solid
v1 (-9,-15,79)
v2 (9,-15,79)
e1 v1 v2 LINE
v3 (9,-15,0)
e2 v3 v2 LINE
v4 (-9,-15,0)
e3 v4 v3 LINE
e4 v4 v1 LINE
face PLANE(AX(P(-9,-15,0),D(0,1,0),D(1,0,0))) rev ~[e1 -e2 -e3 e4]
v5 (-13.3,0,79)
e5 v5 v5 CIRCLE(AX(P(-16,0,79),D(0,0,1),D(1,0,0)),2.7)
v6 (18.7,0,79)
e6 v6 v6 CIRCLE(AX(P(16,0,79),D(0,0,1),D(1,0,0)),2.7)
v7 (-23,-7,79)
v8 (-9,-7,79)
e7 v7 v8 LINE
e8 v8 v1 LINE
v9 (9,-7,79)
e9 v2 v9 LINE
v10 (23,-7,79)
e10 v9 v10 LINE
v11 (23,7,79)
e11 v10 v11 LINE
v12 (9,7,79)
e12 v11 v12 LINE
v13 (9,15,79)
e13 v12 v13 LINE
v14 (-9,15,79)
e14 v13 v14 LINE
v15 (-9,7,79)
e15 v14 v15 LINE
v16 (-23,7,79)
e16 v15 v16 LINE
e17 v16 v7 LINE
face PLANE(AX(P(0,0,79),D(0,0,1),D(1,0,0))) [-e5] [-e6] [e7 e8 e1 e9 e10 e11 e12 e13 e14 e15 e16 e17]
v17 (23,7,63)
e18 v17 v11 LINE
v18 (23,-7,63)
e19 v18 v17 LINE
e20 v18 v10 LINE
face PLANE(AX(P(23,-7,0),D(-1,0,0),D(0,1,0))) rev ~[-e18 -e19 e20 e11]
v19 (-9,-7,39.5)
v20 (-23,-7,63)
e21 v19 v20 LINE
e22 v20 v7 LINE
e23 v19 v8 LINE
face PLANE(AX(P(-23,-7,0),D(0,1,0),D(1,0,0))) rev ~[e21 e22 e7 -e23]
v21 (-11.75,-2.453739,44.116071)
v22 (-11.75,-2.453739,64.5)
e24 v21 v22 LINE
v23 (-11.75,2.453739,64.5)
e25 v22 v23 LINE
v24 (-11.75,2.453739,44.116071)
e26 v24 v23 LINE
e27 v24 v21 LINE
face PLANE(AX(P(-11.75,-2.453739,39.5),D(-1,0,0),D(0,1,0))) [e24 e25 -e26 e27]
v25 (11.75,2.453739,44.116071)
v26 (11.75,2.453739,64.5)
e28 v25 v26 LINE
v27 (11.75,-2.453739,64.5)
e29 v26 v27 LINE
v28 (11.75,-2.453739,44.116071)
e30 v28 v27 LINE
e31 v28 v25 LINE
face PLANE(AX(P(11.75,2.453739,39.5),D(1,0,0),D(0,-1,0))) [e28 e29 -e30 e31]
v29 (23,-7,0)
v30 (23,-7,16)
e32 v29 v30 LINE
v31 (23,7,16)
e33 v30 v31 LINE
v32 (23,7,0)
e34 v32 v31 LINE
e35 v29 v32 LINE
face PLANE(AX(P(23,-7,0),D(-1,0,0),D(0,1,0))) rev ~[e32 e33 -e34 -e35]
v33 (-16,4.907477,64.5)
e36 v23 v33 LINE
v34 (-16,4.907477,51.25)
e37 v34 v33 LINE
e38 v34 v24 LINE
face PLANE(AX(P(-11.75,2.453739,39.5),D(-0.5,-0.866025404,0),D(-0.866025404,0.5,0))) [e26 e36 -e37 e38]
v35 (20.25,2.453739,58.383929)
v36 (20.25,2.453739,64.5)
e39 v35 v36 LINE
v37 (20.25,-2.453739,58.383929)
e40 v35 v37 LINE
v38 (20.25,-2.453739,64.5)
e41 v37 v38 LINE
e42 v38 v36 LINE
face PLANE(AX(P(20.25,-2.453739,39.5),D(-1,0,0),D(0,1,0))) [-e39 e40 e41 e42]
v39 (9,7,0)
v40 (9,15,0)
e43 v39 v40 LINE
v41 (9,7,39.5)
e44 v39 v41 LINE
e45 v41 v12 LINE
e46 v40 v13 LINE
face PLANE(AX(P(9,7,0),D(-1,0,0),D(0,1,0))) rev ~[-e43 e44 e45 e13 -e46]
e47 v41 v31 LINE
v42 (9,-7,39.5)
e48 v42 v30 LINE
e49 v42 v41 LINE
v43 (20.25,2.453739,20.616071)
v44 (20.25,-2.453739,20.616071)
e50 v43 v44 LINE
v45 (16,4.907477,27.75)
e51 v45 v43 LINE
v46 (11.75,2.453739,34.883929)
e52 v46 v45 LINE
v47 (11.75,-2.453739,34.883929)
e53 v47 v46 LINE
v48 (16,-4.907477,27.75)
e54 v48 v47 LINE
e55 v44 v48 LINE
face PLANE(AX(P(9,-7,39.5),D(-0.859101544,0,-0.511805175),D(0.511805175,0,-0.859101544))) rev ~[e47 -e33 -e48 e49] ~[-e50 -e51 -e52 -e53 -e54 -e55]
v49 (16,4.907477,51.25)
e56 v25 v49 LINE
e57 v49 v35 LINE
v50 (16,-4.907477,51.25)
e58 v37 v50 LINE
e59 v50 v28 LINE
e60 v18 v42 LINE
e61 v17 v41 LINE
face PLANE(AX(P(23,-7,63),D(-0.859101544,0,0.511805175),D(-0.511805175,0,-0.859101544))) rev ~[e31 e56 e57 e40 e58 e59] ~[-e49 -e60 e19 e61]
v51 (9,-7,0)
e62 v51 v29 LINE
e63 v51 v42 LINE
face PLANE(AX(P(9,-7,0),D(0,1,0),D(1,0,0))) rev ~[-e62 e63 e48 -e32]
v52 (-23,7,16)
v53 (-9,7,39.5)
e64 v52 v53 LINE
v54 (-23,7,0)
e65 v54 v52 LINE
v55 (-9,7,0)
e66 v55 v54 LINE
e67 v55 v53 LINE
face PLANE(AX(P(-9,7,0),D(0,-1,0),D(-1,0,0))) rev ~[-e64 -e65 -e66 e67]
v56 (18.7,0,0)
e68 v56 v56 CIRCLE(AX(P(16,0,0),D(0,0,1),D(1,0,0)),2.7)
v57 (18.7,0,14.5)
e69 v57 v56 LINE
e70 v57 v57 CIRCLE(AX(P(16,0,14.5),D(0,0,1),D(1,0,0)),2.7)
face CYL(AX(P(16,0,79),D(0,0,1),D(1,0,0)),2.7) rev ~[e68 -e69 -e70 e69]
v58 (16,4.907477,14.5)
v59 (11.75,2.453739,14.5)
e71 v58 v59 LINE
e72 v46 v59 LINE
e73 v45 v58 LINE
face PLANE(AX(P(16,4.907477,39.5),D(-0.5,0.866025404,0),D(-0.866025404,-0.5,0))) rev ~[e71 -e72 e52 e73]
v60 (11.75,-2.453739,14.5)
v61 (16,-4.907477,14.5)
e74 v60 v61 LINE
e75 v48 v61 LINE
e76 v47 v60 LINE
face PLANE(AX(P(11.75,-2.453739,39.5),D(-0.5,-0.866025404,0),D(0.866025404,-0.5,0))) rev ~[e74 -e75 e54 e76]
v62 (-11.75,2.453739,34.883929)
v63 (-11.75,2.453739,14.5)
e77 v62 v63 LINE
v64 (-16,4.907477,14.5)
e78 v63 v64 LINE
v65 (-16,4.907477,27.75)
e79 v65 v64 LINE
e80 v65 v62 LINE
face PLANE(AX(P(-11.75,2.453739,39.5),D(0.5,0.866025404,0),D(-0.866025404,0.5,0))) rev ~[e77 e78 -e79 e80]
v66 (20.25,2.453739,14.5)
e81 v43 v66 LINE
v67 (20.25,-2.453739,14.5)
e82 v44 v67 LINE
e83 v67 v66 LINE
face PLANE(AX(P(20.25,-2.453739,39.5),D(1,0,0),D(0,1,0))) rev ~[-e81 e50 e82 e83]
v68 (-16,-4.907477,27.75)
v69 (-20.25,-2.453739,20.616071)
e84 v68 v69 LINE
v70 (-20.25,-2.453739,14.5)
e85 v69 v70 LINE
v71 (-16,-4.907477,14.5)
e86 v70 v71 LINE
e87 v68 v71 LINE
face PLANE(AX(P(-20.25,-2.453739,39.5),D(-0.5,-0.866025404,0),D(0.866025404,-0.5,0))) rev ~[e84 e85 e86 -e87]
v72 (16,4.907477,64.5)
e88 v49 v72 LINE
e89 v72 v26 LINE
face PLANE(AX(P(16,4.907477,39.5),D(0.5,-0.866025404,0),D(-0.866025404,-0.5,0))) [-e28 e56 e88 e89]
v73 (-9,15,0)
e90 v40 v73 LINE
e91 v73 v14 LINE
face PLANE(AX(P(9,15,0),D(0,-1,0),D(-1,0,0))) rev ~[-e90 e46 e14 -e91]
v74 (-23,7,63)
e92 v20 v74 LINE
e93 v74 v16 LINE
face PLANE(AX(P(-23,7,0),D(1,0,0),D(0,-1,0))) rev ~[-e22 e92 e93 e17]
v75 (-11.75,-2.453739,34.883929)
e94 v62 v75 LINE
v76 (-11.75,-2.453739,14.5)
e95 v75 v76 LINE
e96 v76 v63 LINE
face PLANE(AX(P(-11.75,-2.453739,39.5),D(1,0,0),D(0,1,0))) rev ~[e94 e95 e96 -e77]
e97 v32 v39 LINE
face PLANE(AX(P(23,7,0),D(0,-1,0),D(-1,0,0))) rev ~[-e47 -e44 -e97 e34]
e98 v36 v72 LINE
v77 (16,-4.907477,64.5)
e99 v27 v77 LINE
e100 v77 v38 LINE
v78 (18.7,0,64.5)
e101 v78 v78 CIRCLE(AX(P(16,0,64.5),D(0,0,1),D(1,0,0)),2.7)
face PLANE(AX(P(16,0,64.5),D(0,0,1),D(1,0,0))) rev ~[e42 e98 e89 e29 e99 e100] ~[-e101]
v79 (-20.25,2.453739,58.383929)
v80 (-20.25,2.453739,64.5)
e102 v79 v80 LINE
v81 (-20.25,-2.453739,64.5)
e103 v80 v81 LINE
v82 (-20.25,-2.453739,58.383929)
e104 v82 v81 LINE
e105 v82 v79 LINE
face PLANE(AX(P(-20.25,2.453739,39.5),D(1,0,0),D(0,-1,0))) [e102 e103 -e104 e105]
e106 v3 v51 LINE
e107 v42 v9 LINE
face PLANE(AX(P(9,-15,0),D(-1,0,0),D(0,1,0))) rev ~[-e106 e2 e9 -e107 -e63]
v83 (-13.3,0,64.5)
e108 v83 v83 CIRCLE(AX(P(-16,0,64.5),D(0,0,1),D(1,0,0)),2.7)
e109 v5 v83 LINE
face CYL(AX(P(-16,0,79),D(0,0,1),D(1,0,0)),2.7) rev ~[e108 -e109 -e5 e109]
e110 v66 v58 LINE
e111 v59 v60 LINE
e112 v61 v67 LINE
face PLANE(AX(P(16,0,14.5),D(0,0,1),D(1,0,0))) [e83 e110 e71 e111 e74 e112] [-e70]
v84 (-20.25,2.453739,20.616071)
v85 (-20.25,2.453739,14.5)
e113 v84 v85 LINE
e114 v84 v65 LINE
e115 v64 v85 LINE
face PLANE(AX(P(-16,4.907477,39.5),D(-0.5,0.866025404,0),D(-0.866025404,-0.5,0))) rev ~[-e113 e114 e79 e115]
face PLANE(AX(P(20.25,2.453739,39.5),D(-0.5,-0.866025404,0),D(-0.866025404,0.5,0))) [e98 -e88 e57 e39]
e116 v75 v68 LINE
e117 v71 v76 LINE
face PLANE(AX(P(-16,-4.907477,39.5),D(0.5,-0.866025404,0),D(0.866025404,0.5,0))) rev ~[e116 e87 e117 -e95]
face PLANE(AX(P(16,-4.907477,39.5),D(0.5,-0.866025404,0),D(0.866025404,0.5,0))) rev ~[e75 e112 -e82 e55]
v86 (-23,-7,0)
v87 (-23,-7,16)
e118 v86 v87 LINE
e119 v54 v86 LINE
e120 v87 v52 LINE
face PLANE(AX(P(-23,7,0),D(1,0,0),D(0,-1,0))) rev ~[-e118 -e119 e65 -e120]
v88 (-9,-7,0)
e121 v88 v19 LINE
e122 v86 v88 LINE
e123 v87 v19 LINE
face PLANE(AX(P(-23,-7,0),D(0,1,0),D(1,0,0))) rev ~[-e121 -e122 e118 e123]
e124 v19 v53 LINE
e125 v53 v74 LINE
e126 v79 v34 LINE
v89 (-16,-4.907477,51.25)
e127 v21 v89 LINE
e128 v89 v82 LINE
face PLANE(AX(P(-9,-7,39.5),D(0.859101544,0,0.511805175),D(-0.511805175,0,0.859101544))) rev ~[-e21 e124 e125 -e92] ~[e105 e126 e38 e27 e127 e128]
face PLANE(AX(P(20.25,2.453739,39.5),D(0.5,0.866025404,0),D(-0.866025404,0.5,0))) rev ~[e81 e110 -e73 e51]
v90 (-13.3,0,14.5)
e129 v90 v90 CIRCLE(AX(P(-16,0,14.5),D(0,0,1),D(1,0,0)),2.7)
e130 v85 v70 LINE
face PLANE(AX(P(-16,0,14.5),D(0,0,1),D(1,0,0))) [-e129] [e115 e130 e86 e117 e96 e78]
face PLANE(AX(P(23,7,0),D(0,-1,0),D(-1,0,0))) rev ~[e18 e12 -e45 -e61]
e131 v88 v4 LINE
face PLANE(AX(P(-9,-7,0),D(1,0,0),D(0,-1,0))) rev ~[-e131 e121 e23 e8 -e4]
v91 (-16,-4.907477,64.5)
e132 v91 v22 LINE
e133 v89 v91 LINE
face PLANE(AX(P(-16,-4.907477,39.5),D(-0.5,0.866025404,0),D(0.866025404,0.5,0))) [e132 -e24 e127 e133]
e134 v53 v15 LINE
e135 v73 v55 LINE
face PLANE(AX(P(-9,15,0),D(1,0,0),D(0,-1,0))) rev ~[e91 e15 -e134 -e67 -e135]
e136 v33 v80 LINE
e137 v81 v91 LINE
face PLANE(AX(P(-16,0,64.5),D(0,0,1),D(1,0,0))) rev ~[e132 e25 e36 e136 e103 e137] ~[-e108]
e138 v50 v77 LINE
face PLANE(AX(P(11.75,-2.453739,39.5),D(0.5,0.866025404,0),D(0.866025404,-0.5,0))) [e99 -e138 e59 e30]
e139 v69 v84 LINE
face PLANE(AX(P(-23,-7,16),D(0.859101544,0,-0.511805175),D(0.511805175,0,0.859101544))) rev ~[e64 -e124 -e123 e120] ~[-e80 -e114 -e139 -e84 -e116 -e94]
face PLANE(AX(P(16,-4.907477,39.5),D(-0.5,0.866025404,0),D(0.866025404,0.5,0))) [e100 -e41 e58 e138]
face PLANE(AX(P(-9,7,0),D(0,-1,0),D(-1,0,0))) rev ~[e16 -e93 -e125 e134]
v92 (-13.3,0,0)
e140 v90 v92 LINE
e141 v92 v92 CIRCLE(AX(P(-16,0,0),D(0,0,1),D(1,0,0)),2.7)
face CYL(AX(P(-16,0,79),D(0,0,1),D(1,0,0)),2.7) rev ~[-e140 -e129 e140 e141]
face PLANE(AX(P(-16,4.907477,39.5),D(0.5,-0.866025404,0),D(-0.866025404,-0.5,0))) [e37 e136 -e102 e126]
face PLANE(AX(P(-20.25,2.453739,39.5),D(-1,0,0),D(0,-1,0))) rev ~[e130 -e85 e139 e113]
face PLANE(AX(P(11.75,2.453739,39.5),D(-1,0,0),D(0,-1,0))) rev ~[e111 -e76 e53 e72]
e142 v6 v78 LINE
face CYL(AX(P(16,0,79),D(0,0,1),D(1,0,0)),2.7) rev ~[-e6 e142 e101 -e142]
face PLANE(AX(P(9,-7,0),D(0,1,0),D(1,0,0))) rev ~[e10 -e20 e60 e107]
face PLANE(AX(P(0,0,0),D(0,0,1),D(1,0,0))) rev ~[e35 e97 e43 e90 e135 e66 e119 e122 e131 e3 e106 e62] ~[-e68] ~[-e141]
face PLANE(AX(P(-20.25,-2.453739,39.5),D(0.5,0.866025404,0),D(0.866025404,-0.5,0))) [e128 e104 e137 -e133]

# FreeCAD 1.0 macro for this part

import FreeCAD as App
import Part
import Sketcher
from FreeCAD import Vector
Q = App.Units.Quantity


def add_polygon(sketch, points):
    """Adds a closed chain of lines whose ends are joined by coincident constraints."""
    first, n = sketch.GeometryCount, len(points)
    for a, b in zip(points, points[1:] + points[:1]):
        sketch.addGeometry(Part.LineSegment(App.Vector(*a, 0), App.Vector(*b, 0)), False)
    for i in range(n):
        sketch.addConstraint(Sketcher.Constraint("Coincident", first + i, 2, first + (i + 1) % n, 1))

doc = App.newDocument("Part")
params = doc.addObject("Spreadsheet::Sheet", "Params")
for row, (alias, value) in enumerate([
    ("sketch1_width", "14 mm"),
    ("sketch1_width2", "18 mm"),
    ("sketch1_height", "8 mm"),
    ("pad1_length", "79 mm"),
    ("sketch2_height", "47 mm"),
    ("sketch3_diameter", "5.4 mm"),
    ("pocket2_length", "79 mm"),
    ("pocket3_length", "25 mm"),
    ("pocket3_length2", "25 mm"),
], start=1):
    params.set(f"A{row}", alias)
    params.set(f"B{row}", "=" + value)
    params.setAlias(f"B{row}", alias)

body = doc.addObject("PartDesign::Body", "Body")

# Sketch on XY plane
sketch1 = body.newObject("Sketcher::SketchObject", "Sketch")
sketch1.AttachmentSupport = (doc.getObject("XY_Plane"), [""])
sketch1.MapMode = "FlatFace"
add_polygon(sketch1, [(-9, 7), (-23, 7), (-23, -7), (-9, -7), (-9, -15), (9, -15), (9, -7), (23, -7), (23, 7), (9, 7), (9, 15), (-9, 15)])  # lines 0-11
sketch1.addConstraint(Sketcher.Constraint("Horizontal", 0))
sketch1.addConstraint(Sketcher.Constraint("Vertical", 1))
sketch1.addConstraint(Sketcher.Constraint("Horizontal", 2))
sketch1.addConstraint(Sketcher.Constraint("Vertical", 3))
sketch1.addConstraint(Sketcher.Constraint("Horizontal", 4))
sketch1.addConstraint(Sketcher.Constraint("Vertical", 5))
sketch1.addConstraint(Sketcher.Constraint("Horizontal", 6))
sketch1.addConstraint(Sketcher.Constraint("Vertical", 7))
sketch1.addConstraint(Sketcher.Constraint("Horizontal", 8))
sketch1.addConstraint(Sketcher.Constraint("Vertical", 9))
sketch1.addConstraint(Sketcher.Constraint("Horizontal", 10))
sketch1.addConstraint(Sketcher.Constraint("Vertical", 11))
sketch1.addConstraint(Sketcher.Constraint("Symmetric", 0, 2, 6, 2, -1, 1))
sketch1.addConstraint(Sketcher.Constraint("Symmetric", 2, 2, 8, 2, -1, 1))
sketch1.addConstraint(Sketcher.Constraint("Symmetric", 4, 2, 10, 2, -1, 1))
sketch1.addConstraint(Sketcher.Constraint("Symmetric", 2, 2, 5, 2, -2))
sketch1.addConstraint(Sketcher.Constraint("Equal", 8, 1))
sketch1.addConstraint(Sketcher.Constraint("DistanceX", 0, 2, 0, 1, Q("14 mm")))
sketch1.addConstraint(Sketcher.Constraint("DistanceX", 4, 1, 4, 2, Q("18 mm")))
sketch1.addConstraint(Sketcher.Constraint("DistanceY", 3, 2, 3, 1, Q("8 mm")))
sketch1.setExpression("Constraints[29]", "Params.sketch1_width")
sketch1.setExpression("Constraints[30]", "Params.sketch1_width2")
sketch1.setExpression("Constraints[31]", "Params.sketch1_height")
pad1 = body.newObject("PartDesign::Pad", "Pad")
pad1.Profile = sketch1
pad1.setExpression("Length", "Params.pad1_length")

# Sketch on XZ plane
sketch2 = body.newObject("Sketcher::SketchObject", "Sketch001")
sketch2.AttachmentSupport = (doc.getObject("XZ_Plane"), [""])
sketch2.MapMode = "FlatFace"
sketch2.AttachmentOffset = App.Placement(Vector(0, 0, 7), App.Rotation())
add_polygon(sketch2, [(-9, 39.5), (-23, 63), (-23, 16)])  # lines 0-2
add_polygon(sketch2, [(23, 63), (9, 39.5), (23, 16)])  # lines 3-5
sketch2.addConstraint(Sketcher.Constraint("Vertical", 1))
sketch2.addConstraint(Sketcher.Constraint("Vertical", 5))
sketch2.addConstraint(Sketcher.Constraint("Symmetric", 2, 2, 3, 2, -2))
sketch2.addConstraint(Sketcher.Constraint("Symmetric", 1, 2, 4, 2, -2))
sketch2.addConstraint(Sketcher.Constraint("Parallel", 2, 3))
sketch2.addConstraint(Sketcher.Constraint("Parallel", 0, 4))
sketch2.addConstraint(Sketcher.Constraint("DistanceY", 1, 2, 1, 1, Q("47 mm")))
sketch2.addConstraint(Sketcher.Constraint("DistanceX", 0, 2, -1, 1, Q("23 mm")))
sketch2.addConstraint(Sketcher.Constraint("DistanceY", -1, 1, 0, 2, Q("63 mm")))
sketch2.addConstraint(Sketcher.Constraint("DistanceX", 2, 2, -1, 1, Q("9 mm")))
sketch2.setExpression("Constraints[12]", "Params.sketch2_height")
pocket1 = body.newObject("PartDesign::Pocket", "Pocket")
pocket1.Profile = sketch2
pocket1.Type = "ThroughAll"

# Sketch on XY plane
sketch3 = body.newObject("Sketcher::SketchObject", "Sketch002")
sketch3.AttachmentSupport = (doc.getObject("XY_Plane"), [""])
sketch3.MapMode = "FlatFace"
sketch3.AttachmentOffset = App.Placement(Vector(0, 0, 79), App.Rotation())
sketch3.addGeometry(Part.Circle(Vector(-16, 0, 0), Vector(0, 0, 1), 2.7), False)
sketch3.addGeometry(Part.Circle(Vector(16, 0, 0), Vector(0, 0, 1), 2.7), False)
sketch3.addConstraint(Sketcher.Constraint("Equal", 0, 1))
sketch3.addConstraint(Sketcher.Constraint("Symmetric", 0, 3, 1, 3, -1, 1))
sketch3.addConstraint(Sketcher.Constraint("PointOnObject", 0, 3, -1))
sketch3.addConstraint(Sketcher.Constraint("Diameter", 0, Q("5.4 mm")))
sketch3.addConstraint(Sketcher.Constraint("DistanceX", 0, 3, -1, 1, Q("16 mm")))
sketch3.setExpression("Constraints[3]", "Params.sketch3_diameter")
pocket2 = body.newObject("PartDesign::Pocket", "Pocket001")
pocket2.Profile = sketch3
pocket2.setExpression("Length", "Params.pocket2_length")

# Sketch on XY plane
sketch4 = body.newObject("Sketcher::SketchObject", "Sketch003")
sketch4.AttachmentSupport = (doc.getObject("XY_Plane"), [""])
sketch4.MapMode = "FlatFace"
sketch4.AttachmentOffset = App.Placement(Vector(0, 0, 39.5), App.Rotation())
add_polygon(sketch4, [(-16, 4.907477), (-20.25, 2.453739), (-20.25, -2.453739), (-16, -4.907477), (-11.75, -2.453739), (-11.75, 2.453739)])  # lines 0-5
add_polygon(sketch4, [(20.25, -2.453739), (20.25, 2.453739), (16, 4.907477), (11.75, 2.453739), (11.75, -2.453739), (16, -4.907477)])  # lines 6-11
sketch4.addConstraint(Sketcher.Constraint("Vertical", 1))
sketch4.addConstraint(Sketcher.Constraint("Vertical", 4))
sketch4.addConstraint(Sketcher.Constraint("Vertical", 6))
sketch4.addConstraint(Sketcher.Constraint("Vertical", 9))
sketch4.addConstraint(Sketcher.Constraint("Symmetric", 1, 2, 6, 2, -1, 1))
sketch4.addConstraint(Sketcher.Constraint("Symmetric", 2, 2, 7, 2, -1, 1))
sketch4.addConstraint(Sketcher.Constraint("Symmetric", 3, 2, 8, 2, -1, 1))
sketch4.addConstraint(Sketcher.Constraint("Symmetric", 5, 2, 10, 2, -1, 1))
sketch4.addConstraint(Sketcher.Constraint("Symmetric", 5, 2, 7, 2, -2))
sketch4.addConstraint(Sketcher.Constraint("Parallel", 0, 3))
sketch4.addConstraint(Sketcher.Constraint("Parallel", 2, 5))
sketch4.addConstraint(Sketcher.Constraint("Parallel", 7, 10))
sketch4.addConstraint(Sketcher.Constraint("Parallel", 8, 11))
sketch4.addConstraint(Sketcher.Constraint("Horizontal", 1, 2, 3, 2))
sketch4.addConstraint(Sketcher.Constraint("Horizontal", 0, 2, 4, 2))
sketch4.addConstraint(Sketcher.Constraint("Angle", 0, Q("-150 deg")))
sketch4.addConstraint(Sketcher.Constraint("DistanceX", 2, 2, -1, 1, Q("16 mm")))
sketch4.addConstraint(Sketcher.Constraint("DistanceX", 1, 2, 3, 2, Q("8.5 mm")))
sketch4.addConstraint(Sketcher.Constraint("DistanceY", 1, 2, 1, 1, Q("4.907477 mm")))
pocket3 = body.newObject("PartDesign::Pocket", "Pocket002")
pocket3.Profile = sketch4
pocket3.Type = "TwoLengths"
pocket3.setExpression("Length", "Params.pocket3_length")
pocket3.setExpression("Length2", "Params.pocket3_length2")

doc.recompute()
